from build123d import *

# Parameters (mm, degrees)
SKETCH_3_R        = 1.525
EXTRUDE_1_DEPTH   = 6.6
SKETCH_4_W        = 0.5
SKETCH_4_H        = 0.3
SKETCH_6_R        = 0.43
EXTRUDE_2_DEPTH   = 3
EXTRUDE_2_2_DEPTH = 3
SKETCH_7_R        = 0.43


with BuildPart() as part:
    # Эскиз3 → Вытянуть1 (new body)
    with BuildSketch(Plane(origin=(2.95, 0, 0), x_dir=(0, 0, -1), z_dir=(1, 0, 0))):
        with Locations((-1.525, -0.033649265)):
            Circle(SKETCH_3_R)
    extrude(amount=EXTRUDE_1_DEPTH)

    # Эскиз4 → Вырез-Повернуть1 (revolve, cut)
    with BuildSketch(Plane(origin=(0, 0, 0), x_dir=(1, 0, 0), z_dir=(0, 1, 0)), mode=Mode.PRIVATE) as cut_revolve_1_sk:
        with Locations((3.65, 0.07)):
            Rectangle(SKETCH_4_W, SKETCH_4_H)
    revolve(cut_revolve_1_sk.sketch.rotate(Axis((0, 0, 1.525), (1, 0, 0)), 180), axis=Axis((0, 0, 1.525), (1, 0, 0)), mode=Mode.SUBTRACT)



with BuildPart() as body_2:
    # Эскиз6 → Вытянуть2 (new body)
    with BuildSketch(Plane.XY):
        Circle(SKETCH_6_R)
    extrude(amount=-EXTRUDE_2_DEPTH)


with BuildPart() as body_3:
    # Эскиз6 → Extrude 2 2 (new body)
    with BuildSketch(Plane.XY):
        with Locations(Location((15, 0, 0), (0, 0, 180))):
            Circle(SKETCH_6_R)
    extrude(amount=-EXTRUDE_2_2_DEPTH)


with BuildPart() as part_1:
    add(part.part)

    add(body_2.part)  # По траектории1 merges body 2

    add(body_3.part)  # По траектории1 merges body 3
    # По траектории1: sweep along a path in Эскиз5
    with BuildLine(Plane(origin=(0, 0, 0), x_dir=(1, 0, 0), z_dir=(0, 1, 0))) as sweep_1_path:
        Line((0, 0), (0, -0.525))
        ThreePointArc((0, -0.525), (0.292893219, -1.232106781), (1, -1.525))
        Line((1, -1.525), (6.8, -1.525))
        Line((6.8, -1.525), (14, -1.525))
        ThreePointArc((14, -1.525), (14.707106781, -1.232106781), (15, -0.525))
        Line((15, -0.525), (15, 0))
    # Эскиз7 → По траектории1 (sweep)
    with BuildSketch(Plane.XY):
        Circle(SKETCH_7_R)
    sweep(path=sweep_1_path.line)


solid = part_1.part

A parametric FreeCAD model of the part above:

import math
import FreeCAD as App
import Part
import Sketcher


def add_polygon(sketch, points):
    """Adds a closed chain of lines whose ends are joined by coincident constraints."""
    first, n = sketch.GeometryCount, len(points)
    for a, b in zip(points, points[1:] + points[:1]):
        sketch.addGeometry(Part.LineSegment(App.Vector(*a, 0), App.Vector(*b, 0)), False)
    for i in range(n):
        sketch.addConstraint(Sketcher.Constraint("Coincident", first + i, 2, first + (i + 1) % n, 1))

doc = App.newDocument("Part")
params = doc.addObject("Spreadsheet::Sheet", "Params")
for row, (alias, value) in enumerate([
    ("sketch1_diameter", "3.05 mm"),
    ("pad1_length", "6.6 mm"),
    ("sketch2_width", "0.5 mm"),
    ("sketch2_height", "0.3 mm"),
    ("groove_angle", "360 deg"),
    ("sketch3_diameter", "0.86 mm"),
    ("pad2_length", "3 mm"),
    ("sketch4_diameter", "0.86 mm"),
    ("pad3_length", "3 mm"),
    ("sketch5_diameter", "0.86 mm"),
    ("sketch6_radius", "1 mm"),
    ("sketch6_width", "13 mm"),
], start=1):
    params.set(f"A{row}", alias)
    params.set(f"B{row}", "=" + value)
    params.setAlias(f"B{row}", alias)

body = doc.addObject("PartDesign::Body", "Body")

sketch1 = body.newObject("Sketcher::SketchObject", "Sketch")
sketch1.AttachmentSupport = (doc.getObject("YZ_Plane"), [""])
sketch1.MapMode = "FlatFace"
sketch1.AttachmentOffset = App.Placement(App.Vector(0, 0, 2.95), App.Rotation())
sketch1.addGeometry(Part.Circle(App.Vector(-0.033649, 1.525, 0), App.Vector(0, 0, 1), 1.525), False)
sketch1.addConstraint([
    Sketcher.Constraint("Diameter", 0, 3.05),
    Sketcher.Constraint("DistanceY", -1, 1, 0, 3, 1.525),
    Sketcher.Constraint("DistanceX", 0, 3, -1, 1, 0.033649),
])
sketch1.setExpression("Constraints[0]", "Params.sketch1_diameter")
pad1 = body.newObject("PartDesign::Pad", "Pad")
pad1.Profile = sketch1
pad1.setExpression("Length", "Params.pad1_length")

sketch2 = body.newObject("Sketcher::SketchObject", "Sketch001")
sketch2.AttachmentSupport = (doc.getObject("XZ_Plane"), [""])
sketch2.MapMode = "FlatFace"
add_polygon(sketch2, [(3.4, -0.22), (3.4, 0.08), (3.9, 0.08), (3.9, -0.22)])
sketch2.addGeometry(Part.LineSegment(App.Vector(3.4, 1.525, 0), App.Vector(3.9, 1.525, 0)), True)
sketch2.addConstraint([
    Sketcher.Constraint("Vertical", 0),
    Sketcher.Constraint("Horizontal", 1),
    Sketcher.Constraint("Vertical", 2),
    Sketcher.Constraint("Horizontal", 3),
    Sketcher.Constraint("Horizontal", 4),
    Sketcher.Constraint("Vertical", 3, 2, 4, 1),
    Sketcher.Constraint("Vertical", 2, 2, 4, 2),
    Sketcher.Constraint("DistanceX", 1, 1, 1, 2, 0.5),
    Sketcher.Constraint("DistanceY", 0, 1, 0, 2, 0.3),
    Sketcher.Constraint("DistanceX", -1, 1, 0, 2, 3.4),
    Sketcher.Constraint("DistanceY", -1, 1, 0, 2, 0.08),
    Sketcher.Constraint("DistanceY", -1, 1, 4, 1, 1.525),
])
sketch2.setExpression("Constraints[11]", "Params.sketch2_width")
sketch2.setExpression("Constraints[12]", "Params.sketch2_height")
groove = body.newObject("PartDesign::Groove", "Groove")
groove.Profile = sketch2
groove.ReferenceAxis = (sketch2, ["Axis0"])
groove.setExpression("Angle", "Params.groove_angle")
body2 = doc.addObject("PartDesign::Body", "Body001")

sketch3 = body2.newObject("Sketcher::SketchObject", "Sketch002")
sketch3.AttachmentSupport = (doc.getObject("XY_Plane001"), [""])
sketch3.MapMode = "FlatFace"
sketch3.addGeometry(Part.Circle(App.Vector(0, 0, 0), App.Vector(0, 0, 1), 0.43), False)
sketch3.addConstraint([
    Sketcher.Constraint("Coincident", 0, 3, -1, 1),
    Sketcher.Constraint("Diameter", 0, 0.86),
])
sketch3.setExpression("Constraints[1]", "Params.sketch3_diameter")
pad2 = body2.newObject("PartDesign::Pad", "Pad001")
pad2.Profile = sketch3
pad2.setExpression("Length", "Params.pad2_length")
pad2.Reversed = True
body3 = doc.addObject("PartDesign::Body", "Body002")

sketch4 = body3.newObject("Sketcher::SketchObject", "Sketch003")
sketch4.AttachmentSupport = (doc.getObject("XY_Plane002"), [""])
sketch4.MapMode = "FlatFace"
sketch4.addGeometry(Part.Circle(App.Vector(15, 0, 0), App.Vector(0, 0, 1), 0.43), False)
sketch4.addConstraint([
    Sketcher.Constraint("PointOnObject", 0, 3, -1),
    Sketcher.Constraint("Diameter", 0, 0.86),
    Sketcher.Constraint("DistanceX", -1, 1, 0, 3, 15.0),
])
sketch4.setExpression("Constraints[1]", "Params.sketch4_diameter")
pad3 = body3.newObject("PartDesign::Pad", "Pad002")
pad3.Profile = sketch4
pad3.setExpression("Length", "Params.pad3_length")
pad3.Reversed = True
body.AllowCompound = True
doc.recompute()

boolean = body.newObject("PartDesign::Boolean", "Boolean")
boolean.Type = "Fuse"
boolean.addObjects([body2])
doc.recompute()

boolean2 = body.newObject("PartDesign::Boolean", "Boolean001")
boolean2.Type = "Fuse"
boolean2.addObjects([body3])

sketch5 = body.newObject("Sketcher::SketchObject", "Sketch004")
sketch5.AttachmentSupport = (doc.getObject("XY_Plane"), [""])
sketch5.MapMode = "FlatFace"
sketch5.addGeometry(Part.Circle(App.Vector(0, 0, 0), App.Vector(0, 0, 1), 0.43), False)
sketch5.addConstraint([
    Sketcher.Constraint("Coincident", 0, 3, -1, 1),
    Sketcher.Constraint("Diameter", 0, 0.86),
])
sketch5.setExpression("Constraints[1]", "Params.sketch5_diameter")

sketch6 = body.newObject("Sketcher::SketchObject", "Sketch005")
sketch6.AttachmentSupport = (doc.getObject("XZ_Plane"), [""])
sketch6.MapMode = "FlatFace"
sketch6.addGeometry([
    Part.LineSegment(App.Vector(0, 0, 0), App.Vector(0, 0.525, 0)),
    Part.ArcOfCircle(Part.Circle(App.Vector(1, 0.525, 0), App.Vector(0, 0, 1), 1), math.radians(90), math.radians(180)),
    Part.LineSegment(App.Vector(1, 1.525, 0), App.Vector(14, 1.525, 0)),
    Part.ArcOfCircle(Part.Circle(App.Vector(14, 0.525, 0), App.Vector(0, 0, 1), 1), math.radians(0), math.radians(90)),
    Part.LineSegment(App.Vector(15, 0.525, 0), App.Vector(15, 0, 0)),
], False)
sketch6.addConstraint([
    Sketcher.Constraint("Tangent", 0, 2, 1, 2),
    Sketcher.Constraint("Tangent", 1, 1, 2, 1),
    Sketcher.Constraint("Tangent", 2, 2, 3, 2),
    Sketcher.Constraint("Tangent", 3, 1, 4, 1),
    Sketcher.Constraint("Vertical", 0),
    Sketcher.Constraint("Horizontal", 2),
    Sketcher.Constraint("Vertical", 4),
    Sketcher.Constraint("Coincident", 0, 1, -1, 1),
    Sketcher.Constraint("Equal", 1, 3),
    Sketcher.Constraint("PointOnObject", 4, 2, -1),
    Sketcher.Constraint("Radius", 1, 1.0),
    Sketcher.Constraint("DistanceX", 2, 1, 2, 2, 13.0),
    Sketcher.Constraint("DistanceY", 0, 1, 0, 2, 0.525),
])
sketch6.setExpression("Constraints[10]", "Params.sketch6_radius")
sketch6.setExpression("Constraints[11]", "Params.sketch6_width")
doc.recompute()

additivepipe = body.newObject("PartDesign::AdditivePipe", "AdditivePipe")
additivepipe.Profile = sketch5
additivepipe.Spine = (sketch6, ["Edge1", "Edge2", "Edge3", "Edge4", "Edge5"])

doc.recompute()
